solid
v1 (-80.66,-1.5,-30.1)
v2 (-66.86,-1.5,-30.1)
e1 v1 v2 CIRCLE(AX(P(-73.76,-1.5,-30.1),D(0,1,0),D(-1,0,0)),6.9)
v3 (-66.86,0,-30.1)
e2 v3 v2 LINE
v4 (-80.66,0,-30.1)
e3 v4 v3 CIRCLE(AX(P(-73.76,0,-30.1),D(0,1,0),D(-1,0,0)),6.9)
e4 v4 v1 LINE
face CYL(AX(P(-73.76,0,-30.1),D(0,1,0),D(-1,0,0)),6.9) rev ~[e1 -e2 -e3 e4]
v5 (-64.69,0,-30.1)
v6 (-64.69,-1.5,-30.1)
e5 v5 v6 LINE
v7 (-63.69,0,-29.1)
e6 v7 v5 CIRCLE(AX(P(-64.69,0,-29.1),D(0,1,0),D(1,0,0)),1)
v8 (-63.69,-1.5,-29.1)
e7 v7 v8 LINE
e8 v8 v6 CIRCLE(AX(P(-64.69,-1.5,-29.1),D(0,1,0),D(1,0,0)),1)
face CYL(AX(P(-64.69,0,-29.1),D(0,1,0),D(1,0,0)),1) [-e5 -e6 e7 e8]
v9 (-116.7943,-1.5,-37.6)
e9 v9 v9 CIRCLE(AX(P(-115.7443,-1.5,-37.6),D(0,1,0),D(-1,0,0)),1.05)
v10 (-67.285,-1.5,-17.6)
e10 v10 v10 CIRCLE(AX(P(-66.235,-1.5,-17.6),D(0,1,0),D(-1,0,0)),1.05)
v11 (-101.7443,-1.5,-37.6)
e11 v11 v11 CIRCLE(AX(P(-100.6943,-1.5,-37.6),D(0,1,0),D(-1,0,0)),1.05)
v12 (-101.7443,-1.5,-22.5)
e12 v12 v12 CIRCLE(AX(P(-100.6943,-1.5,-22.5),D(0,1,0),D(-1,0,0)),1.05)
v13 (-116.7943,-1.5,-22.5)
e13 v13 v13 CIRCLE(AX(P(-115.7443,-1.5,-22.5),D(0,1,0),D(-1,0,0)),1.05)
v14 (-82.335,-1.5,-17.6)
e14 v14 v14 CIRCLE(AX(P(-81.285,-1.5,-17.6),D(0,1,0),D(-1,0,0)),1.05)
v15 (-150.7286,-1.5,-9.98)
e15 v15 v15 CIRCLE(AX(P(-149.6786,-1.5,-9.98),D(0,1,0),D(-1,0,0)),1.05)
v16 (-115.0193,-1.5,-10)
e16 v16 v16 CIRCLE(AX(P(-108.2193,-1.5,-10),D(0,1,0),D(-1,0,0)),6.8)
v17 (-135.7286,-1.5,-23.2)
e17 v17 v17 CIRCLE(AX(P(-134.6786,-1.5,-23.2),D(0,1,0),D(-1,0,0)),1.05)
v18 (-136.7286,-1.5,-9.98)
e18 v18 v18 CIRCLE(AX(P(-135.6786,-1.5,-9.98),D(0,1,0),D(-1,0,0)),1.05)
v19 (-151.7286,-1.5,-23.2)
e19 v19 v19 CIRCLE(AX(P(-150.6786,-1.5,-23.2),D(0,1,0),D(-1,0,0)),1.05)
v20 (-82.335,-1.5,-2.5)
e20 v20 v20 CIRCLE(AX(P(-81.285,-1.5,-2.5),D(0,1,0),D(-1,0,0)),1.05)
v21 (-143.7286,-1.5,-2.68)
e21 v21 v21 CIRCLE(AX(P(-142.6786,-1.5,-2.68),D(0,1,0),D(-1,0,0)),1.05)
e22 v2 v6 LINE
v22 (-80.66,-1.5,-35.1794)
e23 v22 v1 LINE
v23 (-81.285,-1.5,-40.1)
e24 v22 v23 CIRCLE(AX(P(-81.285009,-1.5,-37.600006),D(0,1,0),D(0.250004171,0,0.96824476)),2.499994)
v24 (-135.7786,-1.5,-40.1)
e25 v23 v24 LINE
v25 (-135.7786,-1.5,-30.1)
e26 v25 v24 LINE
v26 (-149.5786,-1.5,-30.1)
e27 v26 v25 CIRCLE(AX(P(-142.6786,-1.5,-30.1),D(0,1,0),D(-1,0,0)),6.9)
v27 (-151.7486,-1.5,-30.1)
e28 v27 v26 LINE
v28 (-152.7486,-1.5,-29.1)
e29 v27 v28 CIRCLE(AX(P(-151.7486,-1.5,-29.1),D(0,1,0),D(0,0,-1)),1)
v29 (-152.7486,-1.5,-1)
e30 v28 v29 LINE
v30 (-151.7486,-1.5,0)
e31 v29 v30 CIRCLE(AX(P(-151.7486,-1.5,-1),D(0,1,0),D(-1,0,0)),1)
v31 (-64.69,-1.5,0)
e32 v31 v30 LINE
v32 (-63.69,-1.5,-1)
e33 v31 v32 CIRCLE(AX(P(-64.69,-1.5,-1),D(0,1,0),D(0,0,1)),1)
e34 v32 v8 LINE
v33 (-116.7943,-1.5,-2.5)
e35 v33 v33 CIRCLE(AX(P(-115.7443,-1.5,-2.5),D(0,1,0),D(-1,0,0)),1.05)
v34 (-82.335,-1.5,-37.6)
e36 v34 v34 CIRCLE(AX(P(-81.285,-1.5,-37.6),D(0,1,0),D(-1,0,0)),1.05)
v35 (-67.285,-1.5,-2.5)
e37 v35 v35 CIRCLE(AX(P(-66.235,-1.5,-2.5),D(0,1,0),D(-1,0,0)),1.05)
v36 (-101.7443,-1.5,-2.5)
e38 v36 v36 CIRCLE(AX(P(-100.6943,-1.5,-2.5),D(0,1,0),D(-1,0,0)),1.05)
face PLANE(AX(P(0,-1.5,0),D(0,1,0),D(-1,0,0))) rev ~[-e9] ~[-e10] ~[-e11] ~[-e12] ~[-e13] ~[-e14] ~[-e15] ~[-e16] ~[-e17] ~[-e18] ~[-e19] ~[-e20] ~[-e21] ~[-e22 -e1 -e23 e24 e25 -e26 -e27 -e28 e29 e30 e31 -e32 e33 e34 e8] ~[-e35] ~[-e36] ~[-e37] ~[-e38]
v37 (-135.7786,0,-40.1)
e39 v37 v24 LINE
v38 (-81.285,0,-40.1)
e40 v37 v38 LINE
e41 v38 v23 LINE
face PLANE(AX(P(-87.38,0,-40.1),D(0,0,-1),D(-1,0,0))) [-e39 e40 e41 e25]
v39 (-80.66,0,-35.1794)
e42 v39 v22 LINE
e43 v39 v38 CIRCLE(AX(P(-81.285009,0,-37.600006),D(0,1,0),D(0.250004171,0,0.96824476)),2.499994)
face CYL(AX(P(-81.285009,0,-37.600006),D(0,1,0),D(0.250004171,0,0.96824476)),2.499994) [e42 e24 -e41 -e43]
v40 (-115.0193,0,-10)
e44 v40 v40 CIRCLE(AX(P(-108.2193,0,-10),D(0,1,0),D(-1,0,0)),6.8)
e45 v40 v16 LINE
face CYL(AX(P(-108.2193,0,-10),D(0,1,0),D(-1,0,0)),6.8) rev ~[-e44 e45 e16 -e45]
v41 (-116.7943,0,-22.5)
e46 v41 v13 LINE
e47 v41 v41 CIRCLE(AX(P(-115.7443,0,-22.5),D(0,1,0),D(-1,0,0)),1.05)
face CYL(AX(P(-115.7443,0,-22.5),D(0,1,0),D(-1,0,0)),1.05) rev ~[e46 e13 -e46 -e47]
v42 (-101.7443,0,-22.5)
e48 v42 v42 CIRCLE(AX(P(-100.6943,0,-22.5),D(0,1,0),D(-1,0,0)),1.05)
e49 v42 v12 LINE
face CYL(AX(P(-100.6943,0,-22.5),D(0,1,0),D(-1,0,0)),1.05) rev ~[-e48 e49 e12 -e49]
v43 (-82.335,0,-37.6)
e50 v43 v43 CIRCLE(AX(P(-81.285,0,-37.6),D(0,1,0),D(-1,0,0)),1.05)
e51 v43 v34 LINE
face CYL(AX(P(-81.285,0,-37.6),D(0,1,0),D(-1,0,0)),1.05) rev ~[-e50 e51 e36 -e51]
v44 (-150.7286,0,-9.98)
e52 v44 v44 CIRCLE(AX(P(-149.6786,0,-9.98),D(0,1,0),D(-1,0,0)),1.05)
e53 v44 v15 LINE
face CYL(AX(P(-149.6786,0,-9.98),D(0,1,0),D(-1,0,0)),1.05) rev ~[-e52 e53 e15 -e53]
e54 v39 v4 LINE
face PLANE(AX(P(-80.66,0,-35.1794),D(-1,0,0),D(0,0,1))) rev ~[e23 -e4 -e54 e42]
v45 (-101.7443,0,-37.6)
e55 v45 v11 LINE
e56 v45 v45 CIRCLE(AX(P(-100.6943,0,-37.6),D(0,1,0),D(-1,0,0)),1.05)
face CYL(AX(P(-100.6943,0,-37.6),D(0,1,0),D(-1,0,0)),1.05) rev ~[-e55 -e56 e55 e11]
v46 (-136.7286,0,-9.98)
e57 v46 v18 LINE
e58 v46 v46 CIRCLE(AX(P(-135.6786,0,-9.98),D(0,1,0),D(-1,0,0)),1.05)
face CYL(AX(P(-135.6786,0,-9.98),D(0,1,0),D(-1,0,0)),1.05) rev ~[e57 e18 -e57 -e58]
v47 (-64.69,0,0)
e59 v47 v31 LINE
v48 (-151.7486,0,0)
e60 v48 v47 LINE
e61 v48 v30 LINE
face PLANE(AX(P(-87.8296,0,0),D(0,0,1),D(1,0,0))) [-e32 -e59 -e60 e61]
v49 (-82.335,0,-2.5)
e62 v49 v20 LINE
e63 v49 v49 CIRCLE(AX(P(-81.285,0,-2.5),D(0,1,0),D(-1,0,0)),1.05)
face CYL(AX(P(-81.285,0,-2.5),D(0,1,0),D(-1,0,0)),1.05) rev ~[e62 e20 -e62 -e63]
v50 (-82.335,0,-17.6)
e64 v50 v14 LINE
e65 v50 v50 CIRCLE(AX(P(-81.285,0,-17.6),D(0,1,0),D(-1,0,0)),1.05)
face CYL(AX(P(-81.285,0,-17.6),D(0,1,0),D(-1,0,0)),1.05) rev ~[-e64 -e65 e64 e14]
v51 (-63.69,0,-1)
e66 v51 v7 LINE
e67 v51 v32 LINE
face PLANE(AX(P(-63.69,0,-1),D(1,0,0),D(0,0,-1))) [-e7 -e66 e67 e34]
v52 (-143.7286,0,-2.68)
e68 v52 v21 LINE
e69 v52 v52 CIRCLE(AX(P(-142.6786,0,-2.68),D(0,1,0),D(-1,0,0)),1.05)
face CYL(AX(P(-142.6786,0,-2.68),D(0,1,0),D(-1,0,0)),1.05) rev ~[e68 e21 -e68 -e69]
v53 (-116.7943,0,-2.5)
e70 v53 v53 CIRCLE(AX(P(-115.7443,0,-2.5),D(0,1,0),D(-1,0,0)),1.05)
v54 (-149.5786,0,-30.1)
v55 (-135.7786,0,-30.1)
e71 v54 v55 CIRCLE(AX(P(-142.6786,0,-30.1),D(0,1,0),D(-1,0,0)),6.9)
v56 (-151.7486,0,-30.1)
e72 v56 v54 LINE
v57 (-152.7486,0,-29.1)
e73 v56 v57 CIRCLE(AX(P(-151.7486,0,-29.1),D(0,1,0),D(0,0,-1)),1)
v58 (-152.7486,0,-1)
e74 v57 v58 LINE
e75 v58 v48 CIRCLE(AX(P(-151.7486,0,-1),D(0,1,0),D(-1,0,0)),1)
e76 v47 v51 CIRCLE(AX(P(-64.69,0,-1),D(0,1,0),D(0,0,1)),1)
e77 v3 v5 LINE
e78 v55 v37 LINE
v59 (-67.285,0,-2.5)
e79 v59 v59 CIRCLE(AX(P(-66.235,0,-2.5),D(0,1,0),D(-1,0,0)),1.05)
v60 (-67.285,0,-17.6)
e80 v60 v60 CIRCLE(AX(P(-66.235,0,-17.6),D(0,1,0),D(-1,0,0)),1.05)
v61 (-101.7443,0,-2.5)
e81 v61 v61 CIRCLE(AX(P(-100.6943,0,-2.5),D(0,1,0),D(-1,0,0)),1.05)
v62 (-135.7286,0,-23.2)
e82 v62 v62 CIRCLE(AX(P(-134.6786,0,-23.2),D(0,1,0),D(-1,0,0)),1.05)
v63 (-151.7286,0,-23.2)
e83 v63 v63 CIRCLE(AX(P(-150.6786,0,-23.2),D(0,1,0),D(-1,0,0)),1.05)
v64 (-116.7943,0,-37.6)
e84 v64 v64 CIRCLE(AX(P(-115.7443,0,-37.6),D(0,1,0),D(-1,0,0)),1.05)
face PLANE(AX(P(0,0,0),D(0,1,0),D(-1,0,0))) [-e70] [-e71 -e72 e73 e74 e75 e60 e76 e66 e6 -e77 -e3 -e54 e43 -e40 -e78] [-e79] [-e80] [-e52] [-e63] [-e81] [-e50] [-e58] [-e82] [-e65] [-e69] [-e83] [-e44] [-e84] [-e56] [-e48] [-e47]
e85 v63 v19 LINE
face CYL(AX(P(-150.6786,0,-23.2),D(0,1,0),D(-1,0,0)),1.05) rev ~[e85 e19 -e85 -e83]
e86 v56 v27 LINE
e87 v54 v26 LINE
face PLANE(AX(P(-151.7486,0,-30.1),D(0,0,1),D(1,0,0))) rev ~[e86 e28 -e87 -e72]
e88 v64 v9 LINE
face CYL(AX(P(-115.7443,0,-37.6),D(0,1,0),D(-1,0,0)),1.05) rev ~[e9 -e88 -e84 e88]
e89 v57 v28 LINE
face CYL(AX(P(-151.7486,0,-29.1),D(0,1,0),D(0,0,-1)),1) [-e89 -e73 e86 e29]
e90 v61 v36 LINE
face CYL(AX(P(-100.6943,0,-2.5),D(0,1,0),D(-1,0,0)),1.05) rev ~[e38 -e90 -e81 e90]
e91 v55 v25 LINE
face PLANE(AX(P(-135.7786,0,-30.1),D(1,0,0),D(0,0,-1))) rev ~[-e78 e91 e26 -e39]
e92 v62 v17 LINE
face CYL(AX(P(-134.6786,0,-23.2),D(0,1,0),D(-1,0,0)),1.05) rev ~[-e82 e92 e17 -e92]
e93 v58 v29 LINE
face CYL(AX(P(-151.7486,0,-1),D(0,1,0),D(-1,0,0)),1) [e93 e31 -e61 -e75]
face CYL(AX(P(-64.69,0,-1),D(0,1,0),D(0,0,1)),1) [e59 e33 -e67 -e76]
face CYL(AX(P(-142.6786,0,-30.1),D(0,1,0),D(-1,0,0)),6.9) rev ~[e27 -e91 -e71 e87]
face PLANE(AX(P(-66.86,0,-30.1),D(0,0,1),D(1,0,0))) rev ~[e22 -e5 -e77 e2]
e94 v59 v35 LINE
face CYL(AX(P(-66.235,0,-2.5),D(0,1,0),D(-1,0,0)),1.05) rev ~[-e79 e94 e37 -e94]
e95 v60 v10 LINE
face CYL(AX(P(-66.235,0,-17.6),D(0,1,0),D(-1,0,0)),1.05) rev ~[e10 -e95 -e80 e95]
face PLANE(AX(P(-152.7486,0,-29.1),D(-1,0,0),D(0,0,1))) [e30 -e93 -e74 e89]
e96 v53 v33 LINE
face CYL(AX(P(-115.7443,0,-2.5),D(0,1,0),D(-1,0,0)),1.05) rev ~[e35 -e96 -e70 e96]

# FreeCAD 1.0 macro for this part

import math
import FreeCAD as App
import Part
import Sketcher
from FreeCAD import Vector

doc = App.newDocument("Part")
body = doc.addObject("PartDesign::Body", "Body")

# Sketch on XZ plane
sketch1 = body.newObject("Sketcher::SketchObject", "Sketch")
sketch1.AttachmentSupport = (doc.getObject("XZ_Plane"), [""])
sketch1.MapMode = "FlatFace"
sketch1.addGeometry(Part.LineSegment(Vector(-135.7786, -40.1, 0), Vector(-135.7786, -30.1, 0)), False)
sketch1.addGeometry(Part.ArcOfCircle(Part.Circle(Vector(-142.6786, -30.1, 0), Vector(0, 0, 1), 6.9), math.radians(0), math.radians(180)), False)
sketch1.addGeometry(Part.LineSegment(Vector(-149.5786, -30.1, 0), Vector(-151.7486, -30.1, 0)), False)
sketch1.addGeometry(Part.ArcOfCircle(Part.Circle(Vector(-151.7486, -29.1, 0), Vector(0, 0, 1), 1), math.radians(180), math.radians(270)), False)
sketch1.addGeometry(Part.LineSegment(Vector(-152.7486, -29.1, 0), Vector(-152.7486, -1, 0)), False)
sketch1.addGeometry(Part.ArcOfCircle(Part.Circle(Vector(-151.7486, -1, 0), Vector(0, 0, 1), 1), math.radians(90), math.radians(180)), False)
sketch1.addGeometry(Part.LineSegment(Vector(-151.7486, 0, 0), Vector(-64.69, 0, 0)), False)
sketch1.addGeometry(Part.ArcOfCircle(Part.Circle(Vector(-64.69, -1, 0), Vector(0, 0, 1), 1), math.radians(0), math.radians(90)), False)
sketch1.addGeometry(Part.LineSegment(Vector(-63.69, -1, 0), Vector(-63.69, -29.1, 0)), False)
sketch1.addGeometry(Part.ArcOfCircle(Part.Circle(Vector(-64.69, -29.1, 0), Vector(0, 0, 1), 1), math.radians(-90), math.radians(0)), False)
sketch1.addGeometry(Part.LineSegment(Vector(-64.69, -30.1, 0), Vector(-66.86, -30.1, 0)), False)
sketch1.addGeometry(Part.ArcOfCircle(Part.Circle(Vector(-73.76, -30.1, 0), Vector(0, 0, 1), 6.9), math.radians(0), math.radians(180)), False)
sketch1.addGeometry(Part.LineSegment(Vector(-80.66, -30.1, 0), Vector(-80.66, -35.1794, 0)), False)
sketch1.addGeometry(Part.ArcOfCircle(Part.Circle(Vector(-81.285, -37.6, 0), Vector(0, 0, 1), 2.499986), math.radians(-90), math.radians(75.522404)), False)
sketch1.addGeometry(Part.LineSegment(Vector(-81.285, -40.1, 0), Vector(-135.7786, -40.1, 0)), False)
sketch1.addGeometry(Part.Circle(Vector(-81.285, -2.5, 0), Vector(0, 0, 1), 1.05), False)
sketch1.addGeometry(Part.Circle(Vector(-81.285, -37.6, 0), Vector(0, 0, 1), 1.05), False)
sketch1.addGeometry(Part.Circle(Vector(-66.235, -17.6, 0), Vector(0, 0, 1), 1.05), False)
sketch1.addGeometry(Part.Circle(Vector(-81.285, -17.6, 0), Vector(0, 0, 1), 1.05), False)
sketch1.addGeometry(Part.Circle(Vector(-66.235, -2.5, 0), Vector(0, 0, 1), 1.05), False)
sketch1.addGeometry(Part.Circle(Vector(-115.7443, -2.5, 0), Vector(0, 0, 1), 1.05), False)
sketch1.addGeometry(Part.Circle(Vector(-100.6943, -37.6, 0), Vector(0, 0, 1), 1.05), False)
sketch1.addGeometry(Part.Circle(Vector(-100.6943, -22.5, 0), Vector(0, 0, 1), 1.05), False)
sketch1.addGeometry(Part.Circle(Vector(-115.7443, -37.6, 0), Vector(0, 0, 1), 1.05), False)
sketch1.addGeometry(Part.Circle(Vector(-115.7443, -22.5, 0), Vector(0, 0, 1), 1.05), False)
sketch1.addGeometry(Part.Circle(Vector(-100.6943, -2.5, 0), Vector(0, 0, 1), 1.05), False)
sketch1.addGeometry(Part.Circle(Vector(-108.2193, -10, 0), Vector(0, 0, 1), 6.8), False)
sketch1.addGeometry(Part.Circle(Vector(-142.6786, -2.68, 0), Vector(0, 0, 1), 1.05), False)
sketch1.addGeometry(Part.Circle(Vector(-134.6786, -23.2, 0), Vector(0, 0, 1), 1.05), False)
sketch1.addGeometry(Part.Circle(Vector(-150.6786, -23.2, 0), Vector(0, 0, 1), 1.05), False)
sketch1.addGeometry(Part.Circle(Vector(-135.6786, -9.98, 0), Vector(0, 0, 1), 1.05), False)
sketch1.addGeometry(Part.Circle(Vector(-149.6786, -9.98, 0), Vector(0, 0, 1), 1.05), False)
sketch1.addConstraint(Sketcher.Constraint("Tangent", 0, 2, 1, 1))
sketch1.addConstraint(Sketcher.Constraint("Coincident", 1, 2, 2, 1))
sketch1.addConstraint(Sketcher.Constraint("Tangent", 2, 2, 3, 2))
sketch1.addConstraint(Sketcher.Constraint("Tangent", 3, 1, 4, 1))
sketch1.addConstraint(Sketcher.Constraint("Tangent", 4, 2, 5, 2))
sketch1.addConstraint(Sketcher.Constraint("Tangent", 5, 1, 6, 1))
sketch1.addConstraint(Sketcher.Constraint("Tangent", 6, 2, 7, 2))
sketch1.addConstraint(Sketcher.Constraint("Tangent", 7, 1, 8, 1))
sketch1.addConstraint(Sketcher.Constraint("Tangent", 8, 2, 9, 2))
sketch1.addConstraint(Sketcher.Constraint("Tangent", 9, 1, 10, 1))
sketch1.addConstraint(Sketcher.Constraint("Coincident", 10, 2, 11, 1))
sketch1.addConstraint(Sketcher.Constraint("Tangent", 11, 2, 12, 1))
sketch1.addConstraint(Sketcher.Constraint("Coincident", 12, 2, 13, 2))
sketch1.addConstraint(Sketcher.Constraint("Tangent", 13, 1, 14, 1))
sketch1.addConstraint(Sketcher.Constraint("Coincident", 14, 2, 0, 1))
sketch1.addConstraint(Sketcher.Constraint("Vertical", 0))
sketch1.addConstraint(Sketcher.Constraint("Horizontal", 2))
sketch1.addConstraint(Sketcher.Constraint("Vertical", 4))
sketch1.addConstraint(Sketcher.Constraint("Horizontal", 6))
sketch1.addConstraint(Sketcher.Constraint("Vertical", 8))
sketch1.addConstraint(Sketcher.Constraint("Horizontal", 10))
sketch1.addConstraint(Sketcher.Constraint("Vertical", 12))
sketch1.addConstraint(Sketcher.Constraint("Horizontal", 14))
sketch1.addConstraint(Sketcher.Constraint("Coincident", 16, 3, 13, 3))
sketch1.addConstraint(Sketcher.Constraint("Equal", 3, 5))
sketch1.addConstraint(Sketcher.Constraint("Equal", 5, 7))
sketch1.addConstraint(Sketcher.Constraint("Equal", 7, 9))
sketch1.addConstraint(Sketcher.Constraint("Equal", 1, 11))
sketch1.addConstraint(Sketcher.Constraint("Equal", 15, 16))
sketch1.addConstraint(Sketcher.Constraint("Equal", 16, 17))
sketch1.addConstraint(Sketcher.Constraint("Equal", 17, 18))
sketch1.addConstraint(Sketcher.Constraint("Equal", 18, 19))
sketch1.addConstraint(Sketcher.Constraint("Equal", 19, 20))
sketch1.addConstraint(Sketcher.Constraint("Equal", 20, 21))
sketch1.addConstraint(Sketcher.Constraint("Equal", 21, 22))
sketch1.addConstraint(Sketcher.Constraint("Equal", 22, 23))
sketch1.addConstraint(Sketcher.Constraint("Equal", 23, 24))
sketch1.addConstraint(Sketcher.Constraint("Equal", 24, 25))
sketch1.addConstraint(Sketcher.Constraint("Equal", 25, 27))
sketch1.addConstraint(Sketcher.Constraint("Equal", 27, 28))
sketch1.addConstraint(Sketcher.Constraint("Equal", 28, 29))
sketch1.addConstraint(Sketcher.Constraint("Equal", 29, 30))
sketch1.addConstraint(Sketcher.Constraint("Equal", 30, 31))
sketch1.addConstraint(Sketcher.Constraint("PointOnObject", 5, 1, -1))
sketch1.addConstraint(Sketcher.Constraint("Horizontal", 3, 3, 9, 3))
sketch1.addConstraint(Sketcher.Constraint("Horizontal", 1, 3, 11, 3))
sketch1.addConstraint(Sketcher.Constraint("Horizontal", 17, 3, 18, 3))
sketch1.addConstraint(Sketcher.Constraint("Horizontal", 15, 3, 19, 3))
sketch1.addConstraint(Sketcher.Constraint("Horizontal", 19, 3, 20, 3))
sketch1.addConstraint(Sketcher.Constraint("Horizontal", 16, 3, 21, 3))
sketch1.addConstraint(Sketcher.Constraint("Horizontal", 21, 3, 23, 3))
sketch1.addConstraint(Sketcher.Constraint("Horizontal", 22, 3, 24, 3))
sketch1.addConstraint(Sketcher.Constraint("Horizontal", 20, 3, 25, 3))
sketch1.addConstraint(Sketcher.Constraint("Horizontal", 28, 3, 29, 3))
sketch1.addConstraint(Sketcher.Constraint("Horizontal", 30, 3, 31, 3))
sketch1.addConstraint(Sketcher.Constraint("Horizontal", 0, 2, 1, 2))
sketch1.addConstraint(Sketcher.Constraint("Vertical", 13, 3, 15, 3))
sketch1.addConstraint(Sketcher.Constraint("Vertical", 16, 3, 18, 3))
sketch1.addConstraint(Sketcher.Constraint("Vertical", 17, 3, 19, 3))
sketch1.addConstraint(Sketcher.Constraint("Vertical", 21, 3, 22, 3))
sketch1.addConstraint(Sketcher.Constraint("Vertical", 20, 3, 23, 3))
sketch1.addConstraint(Sketcher.Constraint("Vertical", 23, 3, 24, 3))
sketch1.addConstraint(Sketcher.Constraint("Vertical", 22, 3, 25, 3))
sketch1.addConstraint(Sketcher.Constraint("Vertical", 1, 3, 27, 3))
sketch1.addConstraint(Sketcher.Constraint("Equal", 2, 10))
sketch1.addConstraint(Sketcher.Constraint("Radius", 3, 1.0))
sketch1.addConstraint(Sketcher.Constraint("Diameter", 15, 2.1))
sketch1.addConstraint(Sketcher.Constraint("Diameter", 26, 13.6))
sketch1.addConstraint(Sketcher.Constraint("Radius", 1, 6.9))
sketch1.addConstraint(Sketcher.Constraint("Radius", 13, 2.5))
sketch1.addConstraint(Sketcher.Constraint("DistanceY", 0, 1, 0, 2, 10.0))
sketch1.addConstraint(Sketcher.Constraint("DistanceY", 4, 1, 4, 2, 28.1))
sketch1.addConstraint(Sketcher.Constraint("DistanceY", 26, 3, -1, 1, 10.0))
sketch1.addConstraint(Sketcher.Constraint("DistanceY", 13, 3, 17, 3, 20.0))
sketch1.addConstraint(Sketcher.Constraint("DistanceY", 22, 3, 20, 3, 20.0))
sketch1.addConstraint(Sketcher.Constraint("DistanceX", 1, 3, 28, 3, 8.0))
sketch1.addConstraint(Sketcher.Constraint("DistanceX", 29, 3, 1, 3, 8.0))
sketch1.addConstraint(Sketcher.Constraint("DistanceX", 27, 3, 30, 3, 7.0))
sketch1.addConstraint(Sketcher.Constraint("DistanceX", 31, 3, 27, 3, 7.0))
sketch1.addConstraint(Sketcher.Constraint("DistanceX", 2, 2, 2, 1, 2.17))
sketch1.addConstraint(Sketcher.Constraint("DistanceY", 15, 3, -1, 1, 2.5))
sketch1.addConstraint(Sketcher.Constraint("DistanceY", 28, 3, -1, 1, 23.2))
sketch1.addConstraint(Sketcher.Constraint("DistanceY", 30, 3, 27, 3, 7.3))
sketch1.addConstraint(Sketcher.Constraint("DistanceX", 7, 3, -1, 1, 64.69))
sketch1.addConstraint(Sketcher.Constraint("DistanceY", 27, 3, -1, 1, 2.68))
sketch1.addConstraint(Sketcher.Constraint("DistanceX", 15, 3, 17, 3, 15.05))
sketch1.addConstraint(Sketcher.Constraint("DistanceX", 20, 3, 22, 3, 15.05))
sketch1.addConstraint(Sketcher.Constraint("DistanceX", 6, 1, 6, 2, 87.0586))
sketch1.addConstraint(Sketcher.Constraint("DistanceX", 14, 2, 14, 1, 54.4936))
sketch1.addConstraint(Sketcher.Constraint("DistanceX", 20, 3, 26, 3, 7.525))
sketch1.addConstraint(Sketcher.Constraint("DistanceX", 20, 3, -1, 1, 115.7443))
pad1 = body.newObject("PartDesign::Pad", "Pad")
pad1.Profile = sketch1
pad1.Length = 1.5

doc.recompute()
